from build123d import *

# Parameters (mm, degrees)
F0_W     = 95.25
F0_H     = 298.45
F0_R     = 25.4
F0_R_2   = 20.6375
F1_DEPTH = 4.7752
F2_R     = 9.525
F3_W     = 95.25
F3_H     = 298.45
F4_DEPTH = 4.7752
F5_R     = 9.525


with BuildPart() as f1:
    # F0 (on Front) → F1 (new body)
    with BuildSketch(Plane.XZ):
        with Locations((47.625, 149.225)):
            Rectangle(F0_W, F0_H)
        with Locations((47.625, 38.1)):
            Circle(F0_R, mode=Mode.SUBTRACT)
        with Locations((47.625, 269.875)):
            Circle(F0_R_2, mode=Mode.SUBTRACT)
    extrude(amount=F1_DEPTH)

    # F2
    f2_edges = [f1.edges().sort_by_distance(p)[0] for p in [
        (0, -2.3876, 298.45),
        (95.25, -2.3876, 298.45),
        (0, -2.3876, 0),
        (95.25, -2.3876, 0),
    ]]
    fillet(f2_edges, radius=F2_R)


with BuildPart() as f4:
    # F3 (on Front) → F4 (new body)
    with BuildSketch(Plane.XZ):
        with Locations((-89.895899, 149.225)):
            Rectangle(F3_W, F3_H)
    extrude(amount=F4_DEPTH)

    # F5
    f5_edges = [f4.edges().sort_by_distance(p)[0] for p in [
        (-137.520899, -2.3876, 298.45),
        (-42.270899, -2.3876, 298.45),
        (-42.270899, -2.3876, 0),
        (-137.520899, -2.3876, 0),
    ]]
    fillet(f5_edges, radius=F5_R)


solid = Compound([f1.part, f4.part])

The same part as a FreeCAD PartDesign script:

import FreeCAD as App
import Part
import Sketcher
from FreeCAD import Vector
Q = App.Units.Quantity


def edges_at(feature, points):
    """Names of the edges that pass closest to the given points."""
    edges = feature.Shape.Edges
    near = lambda p: min(range(len(edges)), key=lambda i: edges[i].distToShape(Part.Vertex(*p))[0])
    return sorted({f"Edge{near(p) + 1}" for p in points})


def add_polygon(sketch, points):
    """Adds a closed chain of lines whose ends are joined by coincident constraints."""
    first, n = sketch.GeometryCount, len(points)
    for a, b in zip(points, points[1:] + points[:1]):
        sketch.addGeometry(Part.LineSegment(App.Vector(*a, 0), App.Vector(*b, 0)), False)
    for i in range(n):
        sketch.addConstraint(Sketcher.Constraint("Coincident", first + i, 2, first + (i + 1) % n, 1))

doc = App.newDocument("Part")
body = doc.addObject("PartDesign::Body", "Body")

sketch1 = doc.addObject("Sketcher::SketchObject", "Sketch")
body.addObject(sketch1)
sketch1.AttachmentSupport = (doc.XZ_Plane, [""])
sketch1.MapMode = "FlatFace"
add_polygon(sketch1, [(0, 298), (0, 0), (95, 0), (95, 298)])
sketch1.addGeometry(Part.Circle(Vector(48, 38, 0), Vector(0, 0, 1), 25), False)
sketch1.addGeometry(Part.Circle(Vector(48, 270, 0), Vector(0, 0, 1), 21), False)
sketch1.addConstraint([
    Sketcher.Constraint("Vertical", 0),
    Sketcher.Constraint("Horizontal", 1),
    Sketcher.Constraint("Vertical", 2),
    Sketcher.Constraint("Horizontal", 3),
    Sketcher.Constraint("Coincident", 0, 2, -1, 1),
    Sketcher.Constraint("Vertical", 4, 3, 5, 3),
    Sketcher.Constraint("Diameter", 4, Q("2 in")),
    Sketcher.Constraint("Diameter", 5, Q("1.625 in")),
    Sketcher.Constraint("DistanceX", 1, 1, 1, 2, Q("3.75 in")),
    Sketcher.Constraint("DistanceY", 0, 2, 0, 1, Q("11.75 in")),
    Sketcher.Constraint("DistanceY", -1, 1, 4, 3, Q("1.5 in")),
    Sketcher.Constraint("DistanceX", -1, 1, 4, 3, Q("1.875 in")),
    Sketcher.Constraint("DistanceY", -1, 1, 5, 3, Q("10.625 in")),
])
pad1 = doc.addObject("PartDesign::Pad", "Pad")
body.addObject(pad1)
pad1.Profile = sketch1
pad1.Length = Q("0.188 in")
doc.recompute()

fillet = doc.addObject("PartDesign::Fillet", "Fillet")
body.addObject(fillet)
fillet.Base = (pad1, edges_at(pad1, [
    (0, -2.388, 298.45),
    (95.25, -2.388, 298.45),
    (0, -2.388, 0),
    (95.25, -2.388, 0),
]))
fillet.Radius = Q("0.375 in")
body2 = doc.addObject("PartDesign::Body", "Body001")

sketch2 = doc.addObject("Sketcher::SketchObject", "Sketch001")
body2.addObject(sketch2)
sketch2.AttachmentSupport = (doc.getObject("XZ_Plane001"), [""])
sketch2.MapMode = "FlatFace"
add_polygon(sketch2, [(-138, 298), (-138, 0), (-42, 0), (-42, 298)])
sketch2.addConstraint([
    Sketcher.Constraint("Vertical", 0),
    Sketcher.Constraint("Horizontal", 1),
    Sketcher.Constraint("Vertical", 2),
    Sketcher.Constraint("Horizontal", 3),
    Sketcher.Constraint("PointOnObject", 0, 2, -1),
    Sketcher.Constraint("DistanceX", 1, 1, 1, 2, Q("3.75 in")),
    Sketcher.Constraint("DistanceY", 0, 2, 0, 1, Q("11.75 in")),
    Sketcher.Constraint("DistanceX", 0, 2, -1, 1, 137.520899),
])
pad2 = doc.addObject("PartDesign::Pad", "Pad001")
body2.addObject(pad2)
pad2.Profile = sketch2
pad2.Length = Q("0.188 in")
doc.recompute()

fillet2 = doc.addObject("PartDesign::Fillet", "Fillet001")
body2.addObject(fillet2)
fillet2.Base = (pad2, edges_at(pad2, [
    (-137.521, -2.388, 298.45),
    (-42.271, -2.388, 298.45),
    (-42.271, -2.388, 0),
    (-137.521, -2.388, 0),
]))
fillet2.Radius = Q("0.375 in")

doc.recompute()
